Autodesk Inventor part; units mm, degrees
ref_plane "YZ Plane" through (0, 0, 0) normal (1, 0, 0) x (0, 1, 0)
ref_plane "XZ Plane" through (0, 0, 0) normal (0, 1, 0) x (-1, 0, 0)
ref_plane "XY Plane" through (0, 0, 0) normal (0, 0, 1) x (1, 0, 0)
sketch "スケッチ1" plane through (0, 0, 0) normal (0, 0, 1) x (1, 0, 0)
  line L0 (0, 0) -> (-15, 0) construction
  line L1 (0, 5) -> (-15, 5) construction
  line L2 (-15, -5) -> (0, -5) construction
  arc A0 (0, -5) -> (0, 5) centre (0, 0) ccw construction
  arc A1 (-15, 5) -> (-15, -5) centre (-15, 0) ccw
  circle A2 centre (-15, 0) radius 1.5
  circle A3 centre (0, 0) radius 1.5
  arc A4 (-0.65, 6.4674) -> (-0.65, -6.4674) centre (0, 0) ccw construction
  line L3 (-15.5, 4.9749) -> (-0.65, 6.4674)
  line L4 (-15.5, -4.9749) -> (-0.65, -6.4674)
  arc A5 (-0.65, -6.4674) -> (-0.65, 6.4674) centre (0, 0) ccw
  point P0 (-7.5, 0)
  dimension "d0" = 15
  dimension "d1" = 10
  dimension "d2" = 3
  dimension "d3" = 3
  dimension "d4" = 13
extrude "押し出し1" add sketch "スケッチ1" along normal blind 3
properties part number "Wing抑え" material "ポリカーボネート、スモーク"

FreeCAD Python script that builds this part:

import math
import FreeCAD as App
import Part
import Sketcher

V = App.Vector

doc = App.newDocument("Part")
body = doc.addObject("PartDesign::Body", "Body")

# Sketch on XY plane
sketch1 = body.newObject("Sketcher::SketchObject", "Sketch")
sketch1.AttachmentSupport = (doc.getObject("XY_Plane"), [""])
sketch1.MapMode = "FlatFace"
sketch1.addGeometry(Part.LineSegment(V(-0.65, 6.4674, 0), V(-15.5, 4.9749, 0)), False)
sketch1.addGeometry(Part.ArcOfCircle(Part.Circle(V(-15, 0, 0), V(0, 0, 1), 5), math.radians(95.739213), math.radians(264.260787)), False)
sketch1.addGeometry(Part.LineSegment(V(-15.5, -4.9749, 0), V(-0.65, -6.4674, 0)), False)
sketch1.addGeometry(Part.ArcOfCircle(Part.Circle(V(0, 0, 0), V(0, 0, 1), 6.499982), math.radians(-95.739187), math.radians(95.739187)), False)
sketch1.addGeometry(Part.Circle(V(-15, 0, 0), V(0, 0, 1), 1.5), False)
sketch1.addGeometry(Part.Circle(V(0, 0, 0), V(0, 0, 1), 1.5), False)
sketch1.addConstraint(Sketcher.Constraint("Tangent", 0, 2, 1, 1))
sketch1.addConstraint(Sketcher.Constraint("Tangent", 1, 2, 2, 1))
sketch1.addConstraint(Sketcher.Constraint("Tangent", 2, 2, 3, 1))
sketch1.addConstraint(Sketcher.Constraint("Tangent", 3, 2, 0, 1))
sketch1.addConstraint(Sketcher.Constraint("Coincident", 3, 3, -1, 1))
sketch1.addConstraint(Sketcher.Constraint("Coincident", 5, 3, -1, 1))
sketch1.addConstraint(Sketcher.Constraint("Coincident", 4, 3, 1, 3))
sketch1.addConstraint(Sketcher.Constraint("Equal", 4, 5))
sketch1.addConstraint(Sketcher.Constraint("PointOnObject", 1, 3, -1))
sketch1.addConstraint(Sketcher.Constraint("Diameter", 4, 3.0))
sketch1.addConstraint(Sketcher.Constraint("Radius", 1, 5.0))
sketch1.addConstraint(Sketcher.Constraint("Radius", 3, 6.5))
sketch1.addConstraint(Sketcher.Constraint("DistanceX", 1, 3, -1, 1, 15.0))
pad1 = body.newObject("PartDesign::Pad", "Pad")
pad1.Profile = sketch1
pad1.Length = 3

doc.recompute()
